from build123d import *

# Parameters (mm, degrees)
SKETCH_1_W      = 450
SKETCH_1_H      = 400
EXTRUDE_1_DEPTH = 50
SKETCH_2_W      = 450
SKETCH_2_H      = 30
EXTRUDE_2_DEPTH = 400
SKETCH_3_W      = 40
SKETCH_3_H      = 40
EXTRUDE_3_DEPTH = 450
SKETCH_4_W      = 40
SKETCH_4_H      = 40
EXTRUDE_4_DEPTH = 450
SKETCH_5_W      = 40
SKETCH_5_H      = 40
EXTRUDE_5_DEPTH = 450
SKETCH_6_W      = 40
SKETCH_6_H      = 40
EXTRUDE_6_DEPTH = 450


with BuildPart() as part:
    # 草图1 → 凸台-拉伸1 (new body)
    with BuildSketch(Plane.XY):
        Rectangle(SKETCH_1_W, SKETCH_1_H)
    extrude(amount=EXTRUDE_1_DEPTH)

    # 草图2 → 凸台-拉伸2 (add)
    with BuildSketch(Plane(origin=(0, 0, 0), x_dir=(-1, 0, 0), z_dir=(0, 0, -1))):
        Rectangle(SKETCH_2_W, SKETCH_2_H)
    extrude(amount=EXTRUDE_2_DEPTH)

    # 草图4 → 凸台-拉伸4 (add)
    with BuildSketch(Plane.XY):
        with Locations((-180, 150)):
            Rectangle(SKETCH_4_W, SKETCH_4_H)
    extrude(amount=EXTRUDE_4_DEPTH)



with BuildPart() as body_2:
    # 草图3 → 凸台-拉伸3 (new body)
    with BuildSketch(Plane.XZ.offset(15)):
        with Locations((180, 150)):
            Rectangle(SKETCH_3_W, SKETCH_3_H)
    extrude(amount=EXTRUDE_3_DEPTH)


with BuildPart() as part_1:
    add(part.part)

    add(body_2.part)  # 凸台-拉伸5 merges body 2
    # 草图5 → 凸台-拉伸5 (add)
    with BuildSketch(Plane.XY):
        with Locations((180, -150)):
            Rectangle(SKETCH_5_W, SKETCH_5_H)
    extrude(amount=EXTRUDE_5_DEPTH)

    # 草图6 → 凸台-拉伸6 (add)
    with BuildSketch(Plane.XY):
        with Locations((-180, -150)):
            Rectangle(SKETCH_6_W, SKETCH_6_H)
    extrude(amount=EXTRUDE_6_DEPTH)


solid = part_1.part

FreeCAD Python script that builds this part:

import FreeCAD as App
import Part
import Sketcher
Q = App.Units.Quantity

doc = App.newDocument("Part")
body = doc.addObject("PartDesign::Body", "Body")

# Sketch on XY plane
sketch1 = body.newObject("Sketcher::SketchObject", "Sketch")
sketch1.AttachmentSupport = (doc.getObject("XY_Plane"), [""])
sketch1.MapMode = "FlatFace"
sketch1.addGeometry(Part.LineSegment(App.Vector(-225, 200, 0), App.Vector(-225, -200, 0)), False)
sketch1.addGeometry(Part.LineSegment(App.Vector(-225, -200, 0), App.Vector(225, -200, 0)), False)
sketch1.addGeometry(Part.LineSegment(App.Vector(225, -200, 0), App.Vector(225, 200, 0)), False)
sketch1.addGeometry(Part.LineSegment(App.Vector(225, 200, 0), App.Vector(-225, 200, 0)), False)
sketch1.addConstraint(Sketcher.Constraint("Coincident", 0, 2, 1, 1))
sketch1.addConstraint(Sketcher.Constraint("Coincident", 1, 2, 2, 1))
sketch1.addConstraint(Sketcher.Constraint("Coincident", 2, 2, 3, 1))
sketch1.addConstraint(Sketcher.Constraint("Coincident", 3, 2, 0, 1))
sketch1.addConstraint(Sketcher.Constraint("Vertical", 0))
sketch1.addConstraint(Sketcher.Constraint("Horizontal", 1))
sketch1.addConstraint(Sketcher.Constraint("Vertical", 2))
sketch1.addConstraint(Sketcher.Constraint("Horizontal", 3))
sketch1.addConstraint(Sketcher.Constraint("Symmetric", 0, 2, 2, 2, -1, 1))
sketch1.addConstraint(Sketcher.Constraint("DistanceX", 1, 1, 1, 2, Q("450 mm")))
sketch1.addConstraint(Sketcher.Constraint("DistanceY", 0, 2, 0, 1, Q("400 mm")))
pad1 = body.newObject("PartDesign::Pad", "Pad")
pad1.Profile = sketch1
pad1.Length = 50

# Sketch on XY plane
sketch2 = body.newObject("Sketcher::SketchObject", "Sketch001")
sketch2.AttachmentSupport = (doc.getObject("XY_Plane"), [""])
sketch2.MapMode = "FlatFace"
sketch2.addGeometry(Part.LineSegment(App.Vector(225, 15, 0), App.Vector(225, -15, 0)), False)
sketch2.addGeometry(Part.LineSegment(App.Vector(225, -15, 0), App.Vector(-225, -15, 0)), False)
sketch2.addGeometry(Part.LineSegment(App.Vector(-225, -15, 0), App.Vector(-225, 15, 0)), False)
sketch2.addGeometry(Part.LineSegment(App.Vector(-225, 15, 0), App.Vector(225, 15, 0)), False)
sketch2.addConstraint(Sketcher.Constraint("Coincident", 0, 2, 1, 1))
sketch2.addConstraint(Sketcher.Constraint("Coincident", 1, 2, 2, 1))
sketch2.addConstraint(Sketcher.Constraint("Coincident", 2, 2, 3, 1))
sketch2.addConstraint(Sketcher.Constraint("Coincident", 3, 2, 0, 1))
sketch2.addConstraint(Sketcher.Constraint("Vertical", 0))
sketch2.addConstraint(Sketcher.Constraint("Horizontal", 1))
sketch2.addConstraint(Sketcher.Constraint("Vertical", 2))
sketch2.addConstraint(Sketcher.Constraint("Horizontal", 3))
sketch2.addConstraint(Sketcher.Constraint("Symmetric", 0, 2, 2, 2, -1, 1))
sketch2.addConstraint(Sketcher.Constraint("DistanceX", 1, 2, 1, 1, Q("450 mm")))
sketch2.addConstraint(Sketcher.Constraint("DistanceY", 0, 2, 0, 1, Q("30 mm")))
pad2 = body.newObject("PartDesign::Pad", "Pad001")
pad2.Profile = sketch2
pad2.Length = 400
pad2.Reversed = True

# Sketch on XY plane
sketch3 = body.newObject("Sketcher::SketchObject", "Sketch002")
sketch3.AttachmentSupport = (doc.getObject("XY_Plane"), [""])
sketch3.MapMode = "FlatFace"
sketch3.addGeometry(Part.LineSegment(App.Vector(-200, 170, 0), App.Vector(-200, 130, 0)), False)
sketch3.addGeometry(Part.LineSegment(App.Vector(-200, 130, 0), App.Vector(-160, 130, 0)), False)
sketch3.addGeometry(Part.LineSegment(App.Vector(-160, 130, 0), App.Vector(-160, 170, 0)), False)
sketch3.addGeometry(Part.LineSegment(App.Vector(-160, 170, 0), App.Vector(-200, 170, 0)), False)
sketch3.addConstraint(Sketcher.Constraint("Coincident", 0, 2, 1, 1))
sketch3.addConstraint(Sketcher.Constraint("Coincident", 1, 2, 2, 1))
sketch3.addConstraint(Sketcher.Constraint("Coincident", 2, 2, 3, 1))
sketch3.addConstraint(Sketcher.Constraint("Coincident", 3, 2, 0, 1))
sketch3.addConstraint(Sketcher.Constraint("Vertical", 0))
sketch3.addConstraint(Sketcher.Constraint("Horizontal", 1))
sketch3.addConstraint(Sketcher.Constraint("Vertical", 2))
sketch3.addConstraint(Sketcher.Constraint("Horizontal", 3))
sketch3.addConstraint(Sketcher.Constraint("Equal", 3, 0))
sketch3.addConstraint(Sketcher.Constraint("DistanceX", 1, 1, 1, 2, Q("40 mm")))
sketch3.addConstraint(Sketcher.Constraint("DistanceX", 0, 2, -1, 1, Q("200 mm")))
sketch3.addConstraint(Sketcher.Constraint("DistanceY", -1, 1, 0, 2, Q("130 mm")))
pad3 = body.newObject("PartDesign::Pad", "Pad002")
pad3.Profile = sketch3
pad3.Length = 450
body2 = doc.addObject("PartDesign::Body", "Body001")

# Sketch on XZ plane
sketch4 = body2.newObject("Sketcher::SketchObject", "Sketch003")
sketch4.AttachmentSupport = (doc.getObject("XZ_Plane001"), [""])
sketch4.MapMode = "FlatFace"
sketch4.AttachmentOffset = App.Placement(App.Vector(0, 0, 15), App.Rotation())
sketch4.addGeometry(Part.LineSegment(App.Vector(160, 170, 0), App.Vector(160, 130, 0)), False)
sketch4.addGeometry(Part.LineSegment(App.Vector(160, 130, 0), App.Vector(200, 130, 0)), False)
sketch4.addGeometry(Part.LineSegment(App.Vector(200, 130, 0), App.Vector(200, 170, 0)), False)
sketch4.addGeometry(Part.LineSegment(App.Vector(200, 170, 0), App.Vector(160, 170, 0)), False)
sketch4.addConstraint(Sketcher.Constraint("Coincident", 0, 2, 1, 1))
sketch4.addConstraint(Sketcher.Constraint("Coincident", 1, 2, 2, 1))
sketch4.addConstraint(Sketcher.Constraint("Coincident", 2, 2, 3, 1))
sketch4.addConstraint(Sketcher.Constraint("Coincident", 3, 2, 0, 1))
sketch4.addConstraint(Sketcher.Constraint("Vertical", 0))
sketch4.addConstraint(Sketcher.Constraint("Horizontal", 1))
sketch4.addConstraint(Sketcher.Constraint("Vertical", 2))
sketch4.addConstraint(Sketcher.Constraint("Horizontal", 3))
sketch4.addConstraint(Sketcher.Constraint("Equal", 3, 0))
sketch4.addConstraint(Sketcher.Constraint("DistanceX", 1, 1, 1, 2, Q("40 mm")))
sketch4.addConstraint(Sketcher.Constraint("DistanceX", -1, 1, 0, 2, Q("160 mm")))
sketch4.addConstraint(Sketcher.Constraint("DistanceY", -1, 1, 0, 2, Q("130 mm")))
pad4 = body2.newObject("PartDesign::Pad", "Pad003")
pad4.Profile = sketch4
pad4.Length = 450
body.AllowCompound = True
doc.recompute()

boolean = body.newObject("PartDesign::Boolean", "Boolean")
boolean.Type = "Fuse"
boolean.addObjects([body2])

# Sketch on XY plane
sketch5 = body.newObject("Sketcher::SketchObject", "Sketch004")
sketch5.AttachmentSupport = (doc.getObject("XY_Plane"), [""])
sketch5.MapMode = "FlatFace"
sketch5.addGeometry(Part.LineSegment(App.Vector(160, -130, 0), App.Vector(160, -170, 0)), False)
sketch5.addGeometry(Part.LineSegment(App.Vector(160, -170, 0), App.Vector(200, -170, 0)), False)
sketch5.addGeometry(Part.LineSegment(App.Vector(200, -170, 0), App.Vector(200, -130, 0)), False)
sketch5.addGeometry(Part.LineSegment(App.Vector(200, -130, 0), App.Vector(160, -130, 0)), False)
sketch5.addConstraint(Sketcher.Constraint("Coincident", 0, 2, 1, 1))
sketch5.addConstraint(Sketcher.Constraint("Coincident", 1, 2, 2, 1))
sketch5.addConstraint(Sketcher.Constraint("Coincident", 2, 2, 3, 1))
sketch5.addConstraint(Sketcher.Constraint("Coincident", 3, 2, 0, 1))
sketch5.addConstraint(Sketcher.Constraint("Vertical", 0))
sketch5.addConstraint(Sketcher.Constraint("Horizontal", 1))
sketch5.addConstraint(Sketcher.Constraint("Vertical", 2))
sketch5.addConstraint(Sketcher.Constraint("Horizontal", 3))
sketch5.addConstraint(Sketcher.Constraint("Equal", 3, 0))
sketch5.addConstraint(Sketcher.Constraint("DistanceX", 1, 1, 1, 2, Q("40 mm")))
sketch5.addConstraint(Sketcher.Constraint("DistanceX", -1, 1, 0, 2, Q("160 mm")))
sketch5.addConstraint(Sketcher.Constraint("DistanceY", 0, 2, -1, 1, Q("170 mm")))
pad5 = body.newObject("PartDesign::Pad", "Pad004")
pad5.Profile = sketch5
pad5.Length = 450

# Sketch on XY plane
sketch6 = body.newObject("Sketcher::SketchObject", "Sketch005")
sketch6.AttachmentSupport = (doc.getObject("XY_Plane"), [""])
sketch6.MapMode = "FlatFace"
sketch6.addGeometry(Part.LineSegment(App.Vector(-200, -130, 0), App.Vector(-200, -170, 0)), False)
sketch6.addGeometry(Part.LineSegment(App.Vector(-200, -170, 0), App.Vector(-160, -170, 0)), False)
sketch6.addGeometry(Part.LineSegment(App.Vector(-160, -170, 0), App.Vector(-160, -130, 0)), False)
sketch6.addGeometry(Part.LineSegment(App.Vector(-160, -130, 0), App.Vector(-200, -130, 0)), False)
sketch6.addConstraint(Sketcher.Constraint("Coincident", 0, 2, 1, 1))
sketch6.addConstraint(Sketcher.Constraint("Coincident", 1, 2, 2, 1))
sketch6.addConstraint(Sketcher.Constraint("Coincident", 2, 2, 3, 1))
sketch6.addConstraint(Sketcher.Constraint("Coincident", 3, 2, 0, 1))
sketch6.addConstraint(Sketcher.Constraint("Vertical", 0))
sketch6.addConstraint(Sketcher.Constraint("Horizontal", 1))
sketch6.addConstraint(Sketcher.Constraint("Vertical", 2))
sketch6.addConstraint(Sketcher.Constraint("Horizontal", 3))
sketch6.addConstraint(Sketcher.Constraint("Equal", 3, 0))
sketch6.addConstraint(Sketcher.Constraint("DistanceX", 1, 1, 1, 2, Q("40 mm")))
sketch6.addConstraint(Sketcher.Constraint("DistanceX", 0, 2, -1, 1, Q("200 mm")))
sketch6.addConstraint(Sketcher.Constraint("DistanceY", 0, 2, -1, 1, Q("170 mm")))
pad6 = body.newObject("PartDesign::Pad", "Pad005")
pad6.Profile = sketch6
pad6.Length = 450

doc.recompute()
